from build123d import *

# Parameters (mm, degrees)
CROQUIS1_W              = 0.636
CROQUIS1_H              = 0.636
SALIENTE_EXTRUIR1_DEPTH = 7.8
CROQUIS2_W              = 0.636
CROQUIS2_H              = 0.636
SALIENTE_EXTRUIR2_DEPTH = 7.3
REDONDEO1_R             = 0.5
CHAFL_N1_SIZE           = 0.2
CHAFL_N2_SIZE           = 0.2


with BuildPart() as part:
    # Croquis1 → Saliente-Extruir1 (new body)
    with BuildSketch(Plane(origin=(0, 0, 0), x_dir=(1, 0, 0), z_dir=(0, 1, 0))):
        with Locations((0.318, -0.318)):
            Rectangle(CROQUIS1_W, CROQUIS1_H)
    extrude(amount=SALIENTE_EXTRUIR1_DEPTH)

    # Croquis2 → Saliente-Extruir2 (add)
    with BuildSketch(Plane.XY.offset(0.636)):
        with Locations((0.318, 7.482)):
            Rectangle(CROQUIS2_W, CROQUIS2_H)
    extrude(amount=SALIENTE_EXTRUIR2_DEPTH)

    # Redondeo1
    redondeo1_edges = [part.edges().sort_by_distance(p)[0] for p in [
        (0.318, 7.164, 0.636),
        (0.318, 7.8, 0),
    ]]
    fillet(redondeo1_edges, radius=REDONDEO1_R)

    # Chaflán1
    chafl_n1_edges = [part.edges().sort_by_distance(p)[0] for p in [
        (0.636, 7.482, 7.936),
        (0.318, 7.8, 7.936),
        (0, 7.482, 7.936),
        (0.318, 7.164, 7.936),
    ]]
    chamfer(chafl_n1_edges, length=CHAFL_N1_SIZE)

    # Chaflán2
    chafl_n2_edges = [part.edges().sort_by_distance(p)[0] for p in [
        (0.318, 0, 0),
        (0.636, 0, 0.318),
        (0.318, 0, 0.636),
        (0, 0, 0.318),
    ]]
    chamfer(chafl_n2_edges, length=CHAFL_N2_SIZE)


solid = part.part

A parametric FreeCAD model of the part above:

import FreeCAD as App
import Part
import Sketcher
from FreeCAD import Vector


def edges_at(feature, points):
    """Names of the edges that pass closest to the given points."""
    edges = feature.Shape.Edges
    near = lambda p: min(range(len(edges)), key=lambda i: edges[i].distToShape(Part.Vertex(*p))[0])
    return sorted({f"Edge{near(p) + 1}" for p in points})


def add_polygon(sketch, points):
    """Adds a closed chain of lines whose ends are joined by coincident constraints."""
    first, n = sketch.GeometryCount, len(points)
    for a, b in zip(points, points[1:] + points[:1]):
        sketch.addGeometry(Part.LineSegment(App.Vector(*a, 0), App.Vector(*b, 0)), False)
    for i in range(n):
        sketch.addConstraint(Sketcher.Constraint("Coincident", first + i, 2, first + (i + 1) % n, 1))

doc = App.newDocument("Part")
body = doc.addObject("PartDesign::Body", "Body")

sketch1 = body.newObject("Sketcher::SketchObject", "Sketch")
sketch1.AttachmentSupport = (doc.getObject("XZ_Plane"), [""])
sketch1.MapMode = "FlatFace"
add_polygon(sketch1, [(0, 0), (0, 0.6), (0.6, 0.6), (0.6, 0)])
sketch1.addConstraint([
    Sketcher.Constraint("Vertical", 0),
    Sketcher.Constraint("Horizontal", 1),
    Sketcher.Constraint("Vertical", 2),
    Sketcher.Constraint("Horizontal", 3),
    Sketcher.Constraint("Coincident", 3, 2, -1, 1),
    Sketcher.Constraint("Equal", 3, 0),
    Sketcher.Constraint("DistanceX", 1, 1, 1, 2, 0.636),
])
pad1 = body.newObject("PartDesign::Pad", "Pad")
pad1.Profile = sketch1
pad1.Length = 7.8
pad1.Reversed = True

sketch2 = body.newObject("Sketcher::SketchObject", "Sketch001")
sketch2.AttachmentSupport = (doc.getObject("XY_Plane"), [""])
sketch2.MapMode = "FlatFace"
sketch2.AttachmentOffset = App.Placement(Vector(0, 0, 0.636), App.Rotation())
add_polygon(sketch2, [(0, 7.8), (0, 7.2), (0.6, 7.2), (0.6, 7.8)])
sketch2.addConstraint([
    Sketcher.Constraint("Vertical", 0),
    Sketcher.Constraint("Horizontal", 1),
    Sketcher.Constraint("Vertical", 2),
    Sketcher.Constraint("Horizontal", 3),
    Sketcher.Constraint("PointOnObject", 0, 2, -2),
    Sketcher.Constraint("Equal", 3, 0),
    Sketcher.Constraint("DistanceY", -1, 1, 2, 2, 7.8),
    Sketcher.Constraint("DistanceX", 1, 1, 1, 2, 0.636),
])
pad2 = body.newObject("PartDesign::Pad", "Pad001")
pad2.Profile = sketch2
pad2.Length = 7.3
doc.recompute()

fillet = body.newObject("PartDesign::Fillet", "Fillet")
fillet.Base = (pad2, edges_at(pad2, [(0.318, 7.164, 0.636), (0.318, 7.8, 0)]))
fillet.Radius = 0.5
doc.recompute()

chamfer = body.newObject("PartDesign::Chamfer", "Chamfer")
chamfer.Base = (fillet, edges_at(fillet, [
    (0.636, 7.482, 7.936),
    (0.318, 7.8, 7.936),
    (0, 7.482, 7.936),
    (0.318, 7.164, 7.936),
]))
chamfer.Size = 0.2
doc.recompute()

chamfer2 = body.newObject("PartDesign::Chamfer", "Chamfer001")
chamfer2.Base = (chamfer, edges_at(chamfer, [
    (0.318, 0, 0),
    (0.636, 0, 0.318),
    (0.318, 0, 0.636),
    (0, 0, 0.318),
]))
chamfer2.Size = 0.2

doc.recompute()
